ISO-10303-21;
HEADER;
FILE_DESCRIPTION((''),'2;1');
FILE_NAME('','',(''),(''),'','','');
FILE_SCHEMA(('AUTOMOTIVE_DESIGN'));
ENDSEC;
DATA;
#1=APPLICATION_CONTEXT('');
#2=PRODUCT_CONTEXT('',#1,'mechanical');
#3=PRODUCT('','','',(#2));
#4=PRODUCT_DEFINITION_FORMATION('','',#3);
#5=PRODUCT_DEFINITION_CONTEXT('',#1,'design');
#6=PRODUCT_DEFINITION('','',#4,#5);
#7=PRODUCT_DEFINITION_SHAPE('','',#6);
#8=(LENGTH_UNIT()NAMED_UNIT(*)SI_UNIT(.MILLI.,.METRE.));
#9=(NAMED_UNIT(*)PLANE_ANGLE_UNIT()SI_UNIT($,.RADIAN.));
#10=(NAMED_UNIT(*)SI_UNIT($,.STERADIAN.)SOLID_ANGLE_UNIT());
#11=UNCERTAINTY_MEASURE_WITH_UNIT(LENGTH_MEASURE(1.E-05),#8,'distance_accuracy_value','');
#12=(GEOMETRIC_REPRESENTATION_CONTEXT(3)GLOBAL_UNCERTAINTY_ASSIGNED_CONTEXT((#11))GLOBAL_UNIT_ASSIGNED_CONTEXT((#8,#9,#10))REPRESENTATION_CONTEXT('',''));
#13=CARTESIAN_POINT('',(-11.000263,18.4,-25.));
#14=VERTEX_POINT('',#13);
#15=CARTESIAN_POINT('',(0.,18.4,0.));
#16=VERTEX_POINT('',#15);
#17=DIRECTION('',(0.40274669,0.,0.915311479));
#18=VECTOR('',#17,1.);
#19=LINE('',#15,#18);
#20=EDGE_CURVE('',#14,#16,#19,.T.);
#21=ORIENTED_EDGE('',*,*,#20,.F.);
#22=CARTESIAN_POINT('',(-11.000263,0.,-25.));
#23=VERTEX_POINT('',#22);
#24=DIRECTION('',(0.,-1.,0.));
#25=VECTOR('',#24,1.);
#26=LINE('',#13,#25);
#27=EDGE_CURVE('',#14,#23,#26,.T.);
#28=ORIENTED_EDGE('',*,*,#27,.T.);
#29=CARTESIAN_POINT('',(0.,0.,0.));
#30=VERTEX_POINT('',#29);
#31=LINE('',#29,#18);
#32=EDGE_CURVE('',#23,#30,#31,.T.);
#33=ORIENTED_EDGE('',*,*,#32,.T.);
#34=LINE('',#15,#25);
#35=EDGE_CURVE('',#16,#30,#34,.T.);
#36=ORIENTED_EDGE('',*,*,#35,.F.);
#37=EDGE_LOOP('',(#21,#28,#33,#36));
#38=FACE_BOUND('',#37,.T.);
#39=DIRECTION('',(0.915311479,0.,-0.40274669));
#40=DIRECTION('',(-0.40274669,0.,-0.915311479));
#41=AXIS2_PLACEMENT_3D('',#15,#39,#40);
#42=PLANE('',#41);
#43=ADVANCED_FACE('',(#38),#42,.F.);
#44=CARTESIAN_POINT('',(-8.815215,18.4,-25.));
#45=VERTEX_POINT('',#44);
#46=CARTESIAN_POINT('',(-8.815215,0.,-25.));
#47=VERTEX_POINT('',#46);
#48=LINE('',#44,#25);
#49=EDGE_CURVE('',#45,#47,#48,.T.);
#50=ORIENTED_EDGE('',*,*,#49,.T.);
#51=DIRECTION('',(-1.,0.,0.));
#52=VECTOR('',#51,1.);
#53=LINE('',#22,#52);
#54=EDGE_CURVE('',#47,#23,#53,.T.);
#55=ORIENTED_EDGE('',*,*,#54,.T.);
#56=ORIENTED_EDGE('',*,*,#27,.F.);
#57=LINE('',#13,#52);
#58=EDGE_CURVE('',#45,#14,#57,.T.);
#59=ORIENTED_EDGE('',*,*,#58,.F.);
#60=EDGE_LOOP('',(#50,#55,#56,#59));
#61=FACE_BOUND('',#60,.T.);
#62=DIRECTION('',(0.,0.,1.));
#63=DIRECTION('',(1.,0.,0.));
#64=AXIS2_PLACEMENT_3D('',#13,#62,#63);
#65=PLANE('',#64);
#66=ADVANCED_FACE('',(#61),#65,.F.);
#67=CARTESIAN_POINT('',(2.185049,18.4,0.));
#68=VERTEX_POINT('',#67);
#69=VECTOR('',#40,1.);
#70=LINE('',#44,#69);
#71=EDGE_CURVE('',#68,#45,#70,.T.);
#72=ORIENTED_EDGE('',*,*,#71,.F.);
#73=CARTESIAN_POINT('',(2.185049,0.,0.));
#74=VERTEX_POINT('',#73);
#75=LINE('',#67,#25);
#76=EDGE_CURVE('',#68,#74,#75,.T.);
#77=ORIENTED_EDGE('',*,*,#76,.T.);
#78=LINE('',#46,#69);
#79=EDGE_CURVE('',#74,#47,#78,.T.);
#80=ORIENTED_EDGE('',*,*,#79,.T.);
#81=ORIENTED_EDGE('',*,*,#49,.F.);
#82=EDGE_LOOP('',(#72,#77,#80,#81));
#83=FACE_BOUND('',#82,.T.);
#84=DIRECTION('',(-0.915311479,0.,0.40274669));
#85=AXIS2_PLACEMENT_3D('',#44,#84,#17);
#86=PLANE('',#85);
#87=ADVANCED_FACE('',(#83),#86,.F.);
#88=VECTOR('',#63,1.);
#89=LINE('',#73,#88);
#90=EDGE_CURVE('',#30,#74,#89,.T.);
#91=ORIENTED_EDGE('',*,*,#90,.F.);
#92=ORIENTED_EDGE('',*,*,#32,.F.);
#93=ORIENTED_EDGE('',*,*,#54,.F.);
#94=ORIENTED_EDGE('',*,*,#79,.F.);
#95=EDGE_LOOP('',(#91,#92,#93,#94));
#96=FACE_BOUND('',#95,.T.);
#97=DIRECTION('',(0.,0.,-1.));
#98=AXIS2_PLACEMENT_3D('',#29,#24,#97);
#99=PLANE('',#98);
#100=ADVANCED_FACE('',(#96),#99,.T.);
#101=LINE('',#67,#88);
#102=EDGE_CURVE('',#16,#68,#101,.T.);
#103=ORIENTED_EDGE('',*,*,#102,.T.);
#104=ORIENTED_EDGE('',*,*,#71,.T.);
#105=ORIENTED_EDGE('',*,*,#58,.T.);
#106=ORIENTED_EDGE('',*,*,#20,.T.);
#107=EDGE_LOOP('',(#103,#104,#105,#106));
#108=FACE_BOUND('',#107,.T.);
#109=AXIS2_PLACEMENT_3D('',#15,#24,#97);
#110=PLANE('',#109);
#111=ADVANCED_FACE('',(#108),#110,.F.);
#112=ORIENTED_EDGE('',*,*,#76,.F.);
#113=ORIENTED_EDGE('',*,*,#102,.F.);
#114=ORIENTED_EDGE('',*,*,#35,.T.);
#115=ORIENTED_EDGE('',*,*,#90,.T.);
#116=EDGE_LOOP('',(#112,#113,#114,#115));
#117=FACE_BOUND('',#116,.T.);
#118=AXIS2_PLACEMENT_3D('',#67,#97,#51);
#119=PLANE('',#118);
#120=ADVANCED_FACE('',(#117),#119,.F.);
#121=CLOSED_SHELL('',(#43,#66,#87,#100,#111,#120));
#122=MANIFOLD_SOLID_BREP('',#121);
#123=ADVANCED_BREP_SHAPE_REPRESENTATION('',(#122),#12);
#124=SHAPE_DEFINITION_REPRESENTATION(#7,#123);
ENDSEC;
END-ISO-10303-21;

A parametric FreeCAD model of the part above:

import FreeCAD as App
import Part
import Sketcher
Q = App.Units.Quantity

doc = App.newDocument("Part")
body = doc.addObject("PartDesign::Body", "Body")

# Sketch on XZ plane
sketch1 = body.newObject("Sketcher::SketchObject", "Sketch")
sketch1.AttachmentSupport = (doc.getObject("XZ_Plane"), [""])
sketch1.MapMode = "FlatFace"
sketch1.addGeometry([
    Part.LineSegment(App.Vector(-11.000263, -25, 0), App.Vector(0, 0, 0)),
    Part.LineSegment(App.Vector(0, 0, 0), App.Vector(2.185049, 0, 0)),
    Part.LineSegment(App.Vector(2.185049, 0, 0), App.Vector(-8.815215, -25, 0)),
    Part.LineSegment(App.Vector(-8.815215, -25, 0), App.Vector(-11.000263, -25, 0)),
], False)
sketch1.addConstraint([
    Sketcher.Constraint("Coincident", 0, 2, 1, 1),
    Sketcher.Constraint("Coincident", 1, 2, 2, 1),
    Sketcher.Constraint("Coincident", 2, 2, 3, 1),
    Sketcher.Constraint("Coincident", 3, 2, 0, 1),
    Sketcher.Constraint("Horizontal", 1),
    Sketcher.Constraint("Horizontal", 3),
    Sketcher.Constraint("Coincident", 0, 2, -1, 1),
    Sketcher.Constraint("Parallel", 0, 2),
    Sketcher.Constraint("DistanceY", 2, 2, -1, 1, Q("25 mm")),
    Sketcher.Constraint("Angle", 0, Q("66.25 deg")),
    Sketcher.Constraint("DistanceX", 1, 1, 1, 2, Q("2.185049 mm")),
])
pad1 = body.newObject("PartDesign::Pad", "Pad")
pad1.Profile = sketch1
pad1.Length = 18.4
pad1.Reversed = True

doc.recompute()
